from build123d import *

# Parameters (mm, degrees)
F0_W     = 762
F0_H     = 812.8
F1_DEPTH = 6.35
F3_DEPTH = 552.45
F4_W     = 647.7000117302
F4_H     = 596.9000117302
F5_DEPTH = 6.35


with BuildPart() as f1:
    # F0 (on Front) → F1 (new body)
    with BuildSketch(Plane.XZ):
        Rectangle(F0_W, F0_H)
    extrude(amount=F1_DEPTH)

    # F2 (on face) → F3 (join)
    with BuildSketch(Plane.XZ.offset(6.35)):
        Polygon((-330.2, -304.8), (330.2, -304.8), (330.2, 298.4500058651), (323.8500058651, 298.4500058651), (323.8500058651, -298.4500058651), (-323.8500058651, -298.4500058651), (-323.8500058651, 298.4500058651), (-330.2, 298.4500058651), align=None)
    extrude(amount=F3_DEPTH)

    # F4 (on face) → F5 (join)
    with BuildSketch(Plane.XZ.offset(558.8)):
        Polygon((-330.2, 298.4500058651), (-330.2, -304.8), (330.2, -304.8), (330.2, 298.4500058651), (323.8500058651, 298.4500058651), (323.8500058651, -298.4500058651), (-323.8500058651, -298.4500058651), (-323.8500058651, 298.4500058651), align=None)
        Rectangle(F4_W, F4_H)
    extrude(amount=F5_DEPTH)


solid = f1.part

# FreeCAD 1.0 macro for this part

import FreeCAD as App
import Part
import Sketcher
from FreeCAD import Vector
Q = App.Units.Quantity


def add_polygon(sketch, points):
    """Adds a closed chain of lines whose ends are joined by coincident constraints."""
    first, n = sketch.GeometryCount, len(points)
    for a, b in zip(points, points[1:] + points[:1]):
        sketch.addGeometry(Part.LineSegment(App.Vector(*a, 0), App.Vector(*b, 0)), False)
    for i in range(n):
        sketch.addConstraint(Sketcher.Constraint("Coincident", first + i, 2, first + (i + 1) % n, 1))

doc = App.newDocument("Part")
params = doc.addObject("Spreadsheet::Sheet", "Params")
for row, (alias, value) in enumerate([
    ("sketch1_width", "30 in"),
    ("sketch1_height", "32 in"),
    ("pad1_length", "0.25 in"),
    ("sketch2_width", "26 in"),
    ("pad2_length", "21.75 in"),
    ("sketch3_width", "26 in"),
    ("pad3_length", "0.25 in"),
], start=1):
    params.set(f"A{row}", alias)
    params.set(f"B{row}", "=" + value)
    params.setAlias(f"B{row}", alias)

body = doc.addObject("PartDesign::Body", "Body")

# Sketch on XZ plane
sketch1 = body.newObject("Sketcher::SketchObject", "Sketch")
sketch1.AttachmentSupport = (doc.getObject("XZ_Plane"), [""])
sketch1.MapMode = "FlatFace"
add_polygon(sketch1, [(-381, 406.4), (-381, -406.4), (381, -406.4), (381, 406.4)])  # lines 0-3
sketch1.addConstraint([
    Sketcher.Constraint("Vertical", 0),
    Sketcher.Constraint("Horizontal", 1),
    Sketcher.Constraint("Vertical", 2),
    Sketcher.Constraint("Horizontal", 3),
    Sketcher.Constraint("Symmetric", 0, 2, 2, 2, -1, 1),
    Sketcher.Constraint("DistanceX", 1, 1, 1, 2, Q("30 in")),
    Sketcher.Constraint("DistanceY", 0, 2, 0, 1, Q("32 in")),
])
sketch1.setExpression("Constraints[9]", "Params.sketch1_width")
sketch1.setExpression("Constraints[10]", "Params.sketch1_height")
pad1 = body.newObject("PartDesign::Pad", "Pad")
pad1.Profile = sketch1
pad1.setExpression("Length", "Params.pad1_length")

# Sketch on XZ plane
sketch2 = body.newObject("Sketcher::SketchObject", "Sketch001")
sketch2.AttachmentSupport = (doc.getObject("XZ_Plane"), [""])
sketch2.MapMode = "FlatFace"
sketch2.AttachmentOffset = App.Placement(Vector(0, 0, 0.25 * 25.4), App.Rotation())
add_polygon(sketch2, [(-330.2, -304.8), (330.2, -304.8), (330.2, 298.450006), (323.850006, 298.450006), (323.850006, -298.450006), (-323.850006, -298.450006), (-323.850006, 298.450006), (-330.2, 298.450006)])  # lines 0-7
sketch2.addConstraint([
    Sketcher.Constraint("Horizontal", 0),
    Sketcher.Constraint("Vertical", 1),
    Sketcher.Constraint("Horizontal", 2),
    Sketcher.Constraint("Vertical", 3),
    Sketcher.Constraint("Horizontal", 4),
    Sketcher.Constraint("Vertical", 5),
    Sketcher.Constraint("Horizontal", 6),
    Sketcher.Constraint("Vertical", 7),
    Sketcher.Constraint("Symmetric", 2, 2, 4, 2, -1, 1),
    Sketcher.Constraint("Symmetric", 1, 2, 6, 2, -2),
    Sketcher.Constraint("DistanceX", 0, 1, 0, 2, Q("26 in")),
    Sketcher.Constraint("DistanceY", 0, 2, -1, 1, Q("12 in")),
    Sketcher.Constraint("DistanceX", 4, 2, 4, 1, 647.700012),
    Sketcher.Constraint("DistanceY", 3, 2, 3, 1, 596.900012),
])
sketch2.setExpression("Constraints[18]", "Params.sketch2_width")
pad2 = body.newObject("PartDesign::Pad", "Pad001")
pad2.Profile = sketch2
pad2.setExpression("Length", "Params.pad2_length")

# Sketch on XZ plane
sketch3 = body.newObject("Sketcher::SketchObject", "Sketch002")
sketch3.AttachmentSupport = (doc.getObject("XZ_Plane"), [""])
sketch3.MapMode = "FlatFace"
sketch3.AttachmentOffset = App.Placement(Vector(0, 0, 22 * 25.4), App.Rotation())
add_polygon(sketch3, [(-330.2, 298.450006), (-330.2, -304.8), (330.2, -304.8), (330.2, 298.450006)])  # lines 0-3
sketch3.addConstraint([
    Sketcher.Constraint("Vertical", 0),
    Sketcher.Constraint("Horizontal", 1),
    Sketcher.Constraint("Vertical", 2),
    Sketcher.Constraint("Horizontal", 3),
    Sketcher.Constraint("DistanceX", 1, 1, 1, 2, Q("26 in")),
    Sketcher.Constraint("DistanceX", 0, 2, -1, 1, Q("13 in")),
    Sketcher.Constraint("DistanceY", 0, 2, -1, 1, Q("12 in")),
    Sketcher.Constraint("DistanceY", 0, 2, 0, 1, 603.250006),
])
sketch3.setExpression("Constraints[8]", "Params.sketch3_width")
pad3 = body.newObject("PartDesign::Pad", "Pad002")
pad3.Profile = sketch3
pad3.setExpression("Length", "Params.pad3_length")

doc.recompute()
